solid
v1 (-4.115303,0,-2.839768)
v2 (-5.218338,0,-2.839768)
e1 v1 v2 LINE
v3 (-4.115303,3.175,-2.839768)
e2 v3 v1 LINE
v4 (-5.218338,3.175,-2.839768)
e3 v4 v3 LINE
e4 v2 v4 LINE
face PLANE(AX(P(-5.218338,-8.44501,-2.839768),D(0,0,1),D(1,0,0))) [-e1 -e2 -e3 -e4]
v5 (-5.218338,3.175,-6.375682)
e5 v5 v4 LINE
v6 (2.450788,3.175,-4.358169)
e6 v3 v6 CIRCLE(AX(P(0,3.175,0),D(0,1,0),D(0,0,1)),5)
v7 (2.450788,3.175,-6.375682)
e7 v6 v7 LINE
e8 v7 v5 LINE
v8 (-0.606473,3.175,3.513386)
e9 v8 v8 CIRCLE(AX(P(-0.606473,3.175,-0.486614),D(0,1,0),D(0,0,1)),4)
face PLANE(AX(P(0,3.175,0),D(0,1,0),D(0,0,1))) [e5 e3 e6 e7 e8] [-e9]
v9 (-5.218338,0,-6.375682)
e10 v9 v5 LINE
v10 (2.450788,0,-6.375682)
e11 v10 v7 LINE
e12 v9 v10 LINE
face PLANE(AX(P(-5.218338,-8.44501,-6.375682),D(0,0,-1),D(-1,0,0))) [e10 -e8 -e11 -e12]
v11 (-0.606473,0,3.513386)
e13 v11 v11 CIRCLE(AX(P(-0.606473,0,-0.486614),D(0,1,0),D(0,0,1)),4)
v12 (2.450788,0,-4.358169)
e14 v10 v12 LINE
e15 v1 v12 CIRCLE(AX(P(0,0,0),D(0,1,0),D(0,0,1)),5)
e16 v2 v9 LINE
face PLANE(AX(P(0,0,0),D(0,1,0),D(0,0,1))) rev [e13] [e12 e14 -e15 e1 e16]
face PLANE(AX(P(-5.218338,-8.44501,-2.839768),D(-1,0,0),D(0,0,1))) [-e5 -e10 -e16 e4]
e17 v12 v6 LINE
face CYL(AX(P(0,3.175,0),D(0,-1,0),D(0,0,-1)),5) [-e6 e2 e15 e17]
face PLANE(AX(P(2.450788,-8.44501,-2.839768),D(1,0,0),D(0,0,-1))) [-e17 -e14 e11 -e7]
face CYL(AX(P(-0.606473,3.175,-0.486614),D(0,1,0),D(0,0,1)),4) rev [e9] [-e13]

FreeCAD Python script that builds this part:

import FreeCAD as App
import Part
import Sketcher
from FreeCAD import Vector
Q = App.Units.Quantity


def add_polygon(sketch, points):
    """Adds a closed chain of lines whose ends are joined by coincident constraints."""
    first, n = sketch.GeometryCount, len(points)
    for a, b in zip(points, points[1:] + points[:1]):
        sketch.addGeometry(Part.LineSegment(App.Vector(*a, 0), App.Vector(*b, 0)), False)
    for i in range(n):
        sketch.addConstraint(Sketcher.Constraint("Coincident", first + i, 2, first + (i + 1) % n, 1))

doc = App.newDocument("Part")
params = doc.addObject("Spreadsheet::Sheet", "Params")
for row, (alias, value) in enumerate([
    ("sketch1_diameter", "10 mm"),
    ("pad1_length", "3.175 mm"),
    ("pad2_length", "3.175 mm"),
    ("sketch3_diameter", "8 mm"),
    ("hole_diameter", "8 mm"),
], start=1):
    params.set(f"A{row}", alias)
    params.set(f"B{row}", "=" + value)
    params.setAlias(f"B{row}", alias)

body = doc.addObject("PartDesign::Body", "Body")

sketch1 = body.newObject("Sketcher::SketchObject", "Sketch")
sketch1.AttachmentSupport = (doc.getObject("XZ_Plane"), [""])
sketch1.MapMode = "FlatFace"
sketch1.addGeometry(Part.Circle(Vector(0, 0, 0), Vector(0, 0, 1), 5), False)
sketch1.addConstraint([
    Sketcher.Constraint("Coincident", 0, 3, -1, 1),
    Sketcher.Constraint("Diameter", 0, Q("10 mm")),
])
sketch1.setExpression("Constraints[1]", "Params.sketch1_diameter")
pad1 = body.newObject("PartDesign::Pad", "Pad")
pad1.Profile = sketch1
pad1.setExpression("Length", "Params.pad1_length")
pad1.Reversed = True

sketch2 = body.newObject("Sketcher::SketchObject", "Sketch001")
sketch2.AttachmentSupport = (doc.getObject("XZ_Plane"), [""])
sketch2.MapMode = "FlatFace"
sketch2.AttachmentOffset = App.Placement(Vector(0, 0, -3.175), App.Rotation())
add_polygon(sketch2, [(-5.2, -6.4), (-5.2, -2.8), (2.5, -2.8), (2.5, -6.4)])
sketch2.addConstraint([
    Sketcher.Constraint("Vertical", 0),
    Sketcher.Constraint("Horizontal", 1),
    Sketcher.Constraint("Vertical", 2),
    Sketcher.Constraint("Horizontal", 3),
    Sketcher.Constraint("DistanceX", 1, 1, 1, 2, Q("7.669127 mm")),
    Sketcher.Constraint("DistanceY", 0, 1, 0, 2, Q("3.535915 mm")),
    Sketcher.Constraint("DistanceX", 0, 2, -1, 1, Q("5.218338 mm")),
    Sketcher.Constraint("DistanceY", 0, 2, -1, 1, Q("2.839768 mm")),
])
pad2 = body.newObject("PartDesign::Pad", "Pad001")
pad2.Profile = sketch2
pad2.setExpression("Length", "Params.pad2_length")

sketch3 = body.newObject("Sketcher::SketchObject", "Sketch002")
sketch3.AttachmentSupport = (doc.getObject("XZ_Plane"), [""])
sketch3.MapMode = "FlatFace"
sketch3.AttachmentOffset = App.Placement(Vector(0, 0, -3.175), App.Rotation())
sketch3.addGeometry(Part.Circle(Vector(-0.6, -0.5, 0), Vector(0, 0, 1), 4), False)
sketch3.addConstraint([
    Sketcher.Constraint("Diameter", 0, Q("8 mm")),
    Sketcher.Constraint("DistanceX", 0, 3, -1, 1, Q("0.606473 mm")),
    Sketcher.Constraint("DistanceY", 0, 3, -1, 1, Q("0.486614 mm")),
])
sketch3.setExpression("Constraints[0]", "Params.sketch3_diameter")
doc.recompute()
hole = body.newObject("PartDesign::Hole", "Hole")
hole.Profile = sketch3
hole.ThreadType = "None"
hole.setExpression("Diameter", "Params.hole_diameter")
hole.DepthType = "ThroughAll"
hole.Reversed = True

doc.recompute()
